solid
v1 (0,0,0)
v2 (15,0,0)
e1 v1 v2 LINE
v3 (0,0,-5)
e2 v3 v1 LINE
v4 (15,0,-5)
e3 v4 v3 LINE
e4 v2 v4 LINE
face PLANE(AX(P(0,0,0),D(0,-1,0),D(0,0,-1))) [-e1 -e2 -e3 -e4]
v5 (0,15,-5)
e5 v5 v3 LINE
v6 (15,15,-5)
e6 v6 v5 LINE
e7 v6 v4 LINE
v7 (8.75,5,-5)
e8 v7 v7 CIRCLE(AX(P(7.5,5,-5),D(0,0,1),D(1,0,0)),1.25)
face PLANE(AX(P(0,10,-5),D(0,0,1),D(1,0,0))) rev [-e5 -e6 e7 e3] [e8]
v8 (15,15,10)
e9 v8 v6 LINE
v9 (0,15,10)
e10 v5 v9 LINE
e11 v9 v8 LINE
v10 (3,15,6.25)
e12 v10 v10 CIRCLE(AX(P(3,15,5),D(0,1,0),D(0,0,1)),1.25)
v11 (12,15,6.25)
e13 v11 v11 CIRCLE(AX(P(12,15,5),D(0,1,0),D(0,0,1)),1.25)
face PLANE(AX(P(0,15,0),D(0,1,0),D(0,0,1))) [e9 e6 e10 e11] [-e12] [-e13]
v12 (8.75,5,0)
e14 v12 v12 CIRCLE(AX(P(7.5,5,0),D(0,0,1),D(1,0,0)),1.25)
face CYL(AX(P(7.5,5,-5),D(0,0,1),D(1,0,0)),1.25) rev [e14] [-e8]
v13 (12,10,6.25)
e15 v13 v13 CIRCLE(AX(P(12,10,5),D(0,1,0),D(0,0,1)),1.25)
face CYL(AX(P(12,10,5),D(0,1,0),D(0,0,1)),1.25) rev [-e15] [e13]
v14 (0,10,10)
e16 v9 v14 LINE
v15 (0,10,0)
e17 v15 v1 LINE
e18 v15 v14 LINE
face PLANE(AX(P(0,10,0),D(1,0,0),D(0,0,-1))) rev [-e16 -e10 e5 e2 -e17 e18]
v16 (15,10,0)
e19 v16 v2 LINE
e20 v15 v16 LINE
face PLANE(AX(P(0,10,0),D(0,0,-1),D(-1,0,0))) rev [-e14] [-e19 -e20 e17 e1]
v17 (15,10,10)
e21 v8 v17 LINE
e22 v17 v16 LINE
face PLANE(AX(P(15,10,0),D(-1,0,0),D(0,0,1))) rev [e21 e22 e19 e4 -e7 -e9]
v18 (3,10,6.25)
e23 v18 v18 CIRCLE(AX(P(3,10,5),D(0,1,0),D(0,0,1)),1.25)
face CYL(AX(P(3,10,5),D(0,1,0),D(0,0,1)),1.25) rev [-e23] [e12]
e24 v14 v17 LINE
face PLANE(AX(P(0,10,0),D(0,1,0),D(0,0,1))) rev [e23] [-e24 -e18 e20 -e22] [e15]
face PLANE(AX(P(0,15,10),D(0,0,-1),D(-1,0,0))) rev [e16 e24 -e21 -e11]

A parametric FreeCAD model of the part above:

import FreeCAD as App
import Part
import Sketcher
from FreeCAD import Vector
Q = App.Units.Quantity


def add_polygon(sketch, points):
    """Adds a closed chain of lines whose ends are joined by coincident constraints."""
    first, n = sketch.GeometryCount, len(points)
    for a, b in zip(points, points[1:] + points[:1]):
        sketch.addGeometry(Part.LineSegment(App.Vector(*a, 0), App.Vector(*b, 0)), False)
    for i in range(n):
        sketch.addConstraint(Sketcher.Constraint("Coincident", first + i, 2, first + (i + 1) % n, 1))

doc = App.newDocument("Part")
params = doc.addObject("Spreadsheet::Sheet", "Params")
for row, (alias, value) in enumerate([
    ("sketch1_width", "15 mm"),
    ("sketch1_height", "5 mm"),
    ("pad1_length", "10 mm"),
    ("sketch2_width", "15 mm"),
    ("pad2_length", "5 mm"),
    ("sketch3_diameter", "2.5 mm"),
    ("sketch4_diameter", "2.5 mm"),
    ("pocket2_length", "5 mm"),
], start=1):
    params.set(f"A{row}", alias)
    params.set(f"B{row}", "=" + value)
    params.setAlias(f"B{row}", alias)

body = doc.addObject("PartDesign::Body", "Body")

# Sketch on XZ plane
sketch1 = body.newObject("Sketcher::SketchObject", "Sketch")
sketch1.AttachmentSupport = (doc.getObject("XZ_Plane"), [""])
sketch1.MapMode = "FlatFace"
add_polygon(sketch1, [(0, -5), (0, 0), (15, 0), (15, -5)])  # lines 0-3
sketch1.addConstraint([
    Sketcher.Constraint("Vertical", 0),
    Sketcher.Constraint("Horizontal", 1),
    Sketcher.Constraint("Vertical", 2),
    Sketcher.Constraint("Horizontal", 3),
    Sketcher.Constraint("Coincident", 0, 2, -1, 1),
    Sketcher.Constraint("DistanceX", 1, 1, 1, 2, Q("15 mm")),
    Sketcher.Constraint("DistanceY", 0, 1, 0, 2, Q("5 mm")),
])
sketch1.setExpression("Constraints[9]", "Params.sketch1_width")
sketch1.setExpression("Constraints[10]", "Params.sketch1_height")
pad1 = body.newObject("PartDesign::Pad", "Pad")
pad1.Profile = sketch1
pad1.setExpression("Length", "Params.pad1_length")
pad1.Reversed = True

# Sketch on XZ plane
sketch2 = body.newObject("Sketcher::SketchObject", "Sketch001")
sketch2.AttachmentSupport = (doc.getObject("XZ_Plane"), [""])
sketch2.MapMode = "FlatFace"
sketch2.AttachmentOffset = App.Placement(Vector(0, 0, -10), App.Rotation())
add_polygon(sketch2, [(0, -5), (0, 10), (15, 10), (15, -5)])  # lines 0-3
sketch2.addConstraint([
    Sketcher.Constraint("Vertical", 0),
    Sketcher.Constraint("Horizontal", 1),
    Sketcher.Constraint("Vertical", 2),
    Sketcher.Constraint("Horizontal", 3),
    Sketcher.Constraint("PointOnObject", 0, 2, -2),
    Sketcher.Constraint("Equal", 3, 0),
    Sketcher.Constraint("DistanceX", 1, 1, 1, 2, Q("15 mm")),
    Sketcher.Constraint("DistanceY", -1, 1, 0, 2, Q("10 mm")),
])
sketch2.setExpression("Constraints[10]", "Params.sketch2_width")
pad2 = body.newObject("PartDesign::Pad", "Pad001")
pad2.Profile = sketch2
pad2.setExpression("Length", "Params.pad2_length")
pad2.Reversed = True

# Sketch on XY plane
sketch3 = body.newObject("Sketcher::SketchObject", "Sketch002")
sketch3.AttachmentSupport = (doc.getObject("XY_Plane"), [""])
sketch3.MapMode = "FlatFace"
sketch3.addGeometry(Part.Circle(Vector(7.5, 5, 0), Vector(0, 0, 1), 1.2), False)
sketch3.addConstraint([
    Sketcher.Constraint("Diameter", 0, Q("2.5 mm")),
    Sketcher.Constraint("DistanceY", -1, 1, 0, 3, Q("5 mm")),
    Sketcher.Constraint("DistanceX", -1, 1, 0, 3, Q("7.5 mm")),
])
sketch3.setExpression("Constraints[0]", "Params.sketch3_diameter")
pocket1 = body.newObject("PartDesign::Pocket", "Pocket")
pocket1.Profile = sketch3
pocket1.Type = "ThroughAll"

# Sketch on XZ plane
sketch4 = body.newObject("Sketcher::SketchObject", "Sketch003")
sketch4.AttachmentSupport = (doc.getObject("XZ_Plane"), [""])
sketch4.MapMode = "FlatFace"
sketch4.AttachmentOffset = App.Placement(Vector(0, 0, -15), App.Rotation())
sketch4.addGeometry([
    Part.Circle(Vector(3, 5, 0), Vector(0, 0, 1), 1.2),
    Part.Circle(Vector(12, 5, 0), Vector(0, 0, 1), 1.2),
], False)
sketch4.addConstraint([
    Sketcher.Constraint("Equal", 0, 1),
    Sketcher.Constraint("Horizontal", 0, 3, 1, 3),
    Sketcher.Constraint("Diameter", 0, Q("2.5 mm")),
    Sketcher.Constraint("DistanceX", -1, 1, 0, 3, Q("3 mm")),
    Sketcher.Constraint("DistanceY", -1, 1, 0, 3, Q("5 mm")),
    Sketcher.Constraint("DistanceX", -1, 1, 1, 3, Q("12 mm")),
])
sketch4.setExpression("Constraints[2]", "Params.sketch4_diameter")
pocket2 = body.newObject("PartDesign::Pocket", "Pocket001")
pocket2.Profile = sketch4
pocket2.setExpression("Length", "Params.pocket2_length")
pocket2.Reversed = True

doc.recompute()
